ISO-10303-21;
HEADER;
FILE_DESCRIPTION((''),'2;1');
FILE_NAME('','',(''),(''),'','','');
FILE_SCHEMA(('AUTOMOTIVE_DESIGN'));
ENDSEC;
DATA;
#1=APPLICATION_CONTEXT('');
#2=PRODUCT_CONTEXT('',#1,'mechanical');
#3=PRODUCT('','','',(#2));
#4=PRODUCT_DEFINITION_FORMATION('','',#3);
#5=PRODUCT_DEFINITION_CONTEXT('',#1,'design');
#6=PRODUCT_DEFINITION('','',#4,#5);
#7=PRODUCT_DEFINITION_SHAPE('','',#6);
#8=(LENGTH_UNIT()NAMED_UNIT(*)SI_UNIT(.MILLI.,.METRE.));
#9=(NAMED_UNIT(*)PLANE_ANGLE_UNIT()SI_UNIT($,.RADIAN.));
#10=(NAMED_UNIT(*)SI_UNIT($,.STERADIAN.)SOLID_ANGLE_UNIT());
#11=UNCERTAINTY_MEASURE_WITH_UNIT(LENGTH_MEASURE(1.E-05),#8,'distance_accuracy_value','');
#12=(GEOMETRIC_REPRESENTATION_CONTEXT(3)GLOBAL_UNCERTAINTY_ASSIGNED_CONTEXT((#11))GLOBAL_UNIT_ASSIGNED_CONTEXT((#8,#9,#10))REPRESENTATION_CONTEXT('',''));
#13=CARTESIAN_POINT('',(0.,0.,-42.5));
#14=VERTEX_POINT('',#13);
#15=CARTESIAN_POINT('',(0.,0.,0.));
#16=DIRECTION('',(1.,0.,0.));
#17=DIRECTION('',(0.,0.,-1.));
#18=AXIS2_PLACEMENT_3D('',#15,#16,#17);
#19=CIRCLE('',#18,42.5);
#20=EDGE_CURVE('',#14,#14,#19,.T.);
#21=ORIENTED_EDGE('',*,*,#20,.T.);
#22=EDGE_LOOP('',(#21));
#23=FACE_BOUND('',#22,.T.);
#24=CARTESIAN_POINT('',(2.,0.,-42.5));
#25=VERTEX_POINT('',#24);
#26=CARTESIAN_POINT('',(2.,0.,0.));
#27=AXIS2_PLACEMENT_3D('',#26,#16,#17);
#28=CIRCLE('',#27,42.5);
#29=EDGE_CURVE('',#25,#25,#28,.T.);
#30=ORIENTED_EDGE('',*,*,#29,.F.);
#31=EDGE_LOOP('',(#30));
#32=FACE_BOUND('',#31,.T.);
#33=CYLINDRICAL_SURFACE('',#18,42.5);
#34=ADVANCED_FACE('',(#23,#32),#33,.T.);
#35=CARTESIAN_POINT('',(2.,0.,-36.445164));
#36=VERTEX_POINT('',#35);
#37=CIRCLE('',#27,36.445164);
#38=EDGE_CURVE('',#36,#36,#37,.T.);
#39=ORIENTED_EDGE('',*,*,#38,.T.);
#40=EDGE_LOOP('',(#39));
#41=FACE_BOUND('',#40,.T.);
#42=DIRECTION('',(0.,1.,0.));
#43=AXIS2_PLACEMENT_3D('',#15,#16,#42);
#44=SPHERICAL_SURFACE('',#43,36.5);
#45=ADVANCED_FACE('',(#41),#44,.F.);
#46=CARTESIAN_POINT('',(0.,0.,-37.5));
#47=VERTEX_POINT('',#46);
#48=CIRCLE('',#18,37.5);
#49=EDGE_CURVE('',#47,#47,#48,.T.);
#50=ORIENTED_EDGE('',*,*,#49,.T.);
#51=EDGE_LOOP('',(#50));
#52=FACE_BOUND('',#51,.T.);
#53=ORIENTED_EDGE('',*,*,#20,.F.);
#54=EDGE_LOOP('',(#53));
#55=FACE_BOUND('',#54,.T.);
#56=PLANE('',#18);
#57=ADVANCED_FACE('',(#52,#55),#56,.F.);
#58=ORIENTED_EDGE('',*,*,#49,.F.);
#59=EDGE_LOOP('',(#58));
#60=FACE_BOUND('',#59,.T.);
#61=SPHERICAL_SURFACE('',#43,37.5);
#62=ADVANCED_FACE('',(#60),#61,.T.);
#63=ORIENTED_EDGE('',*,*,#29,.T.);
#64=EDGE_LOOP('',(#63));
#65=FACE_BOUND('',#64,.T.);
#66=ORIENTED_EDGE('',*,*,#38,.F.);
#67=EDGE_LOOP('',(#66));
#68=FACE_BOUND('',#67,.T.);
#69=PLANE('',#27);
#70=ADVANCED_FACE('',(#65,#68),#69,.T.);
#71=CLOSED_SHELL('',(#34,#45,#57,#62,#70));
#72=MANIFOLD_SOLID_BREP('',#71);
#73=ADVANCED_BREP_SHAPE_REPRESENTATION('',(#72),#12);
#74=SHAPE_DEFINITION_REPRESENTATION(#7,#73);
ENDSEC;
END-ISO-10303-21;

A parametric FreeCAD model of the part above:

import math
import FreeCAD as App
import Part
import Sketcher
from FreeCAD import Vector

doc = App.newDocument("Part")
body = doc.addObject("PartDesign::Body", "Body")

# Sketch on XY plane
sketch1 = doc.addObject("Sketcher::SketchObject", "Sketch")
body.addObject(sketch1)
sketch1.AttachmentSupport = (doc.XY_Plane, [""])
sketch1.MapMode = "FlatFace"
sketch1.addGeometry(Part.LineSegment(Vector(0, 42.5, 0), Vector(0, 37.5, 0)), False)
sketch1.addGeometry(Part.ArcOfCircle(Part.Circle(Vector(0, 0, 0), Vector(0, 0, 1), 37.5), math.radians(90), math.radians(180)), False)
sketch1.addGeometry(Part.LineSegment(Vector(-37.5, 0, 0), Vector(-36.5, 0, 0)), False)
sketch1.addGeometry(Part.ArcOfCircle(Part.Circle(Vector(0, 0, 0), Vector(0, 0, 1), 36.5), math.radians(90), math.radians(180)), False)
sketch1.addGeometry(Part.ArcOfCircle(Part.Circle(Vector(0, 0, 0), Vector(0, 0, 1), 36.5), math.radians(86.86), math.radians(90)), False)
sketch1.addGeometry(Part.LineSegment(Vector(2, 36.4, 0), Vector(2, 42.5, 0)), False)
sketch1.addGeometry(Part.LineSegment(Vector(2, 42.5, 0), Vector(0, 42.5, 0)), False)
sketch1.addConstraint(Sketcher.Constraint("Coincident", 0, 2, 1, 1))
sketch1.addConstraint(Sketcher.Constraint("Coincident", 1, 2, 2, 1))
sketch1.addConstraint(Sketcher.Constraint("Coincident", 2, 2, 3, 2))
sketch1.addConstraint(Sketcher.Constraint("Tangent", 3, 1, 4, 2))
sketch1.addConstraint(Sketcher.Constraint("Coincident", 4, 1, 5, 1))
sketch1.addConstraint(Sketcher.Constraint("Coincident", 5, 2, 6, 1))
sketch1.addConstraint(Sketcher.Constraint("Coincident", 6, 2, 0, 1))
sketch1.addConstraint(Sketcher.Constraint("Vertical", 0))
sketch1.addConstraint(Sketcher.Constraint("Horizontal", 2))
sketch1.addConstraint(Sketcher.Constraint("Vertical", 5))
sketch1.addConstraint(Sketcher.Constraint("Horizontal", 6))
sketch1.addConstraint(Sketcher.Constraint("Coincident", 1, 3, -1, 1))
sketch1.addConstraint(Sketcher.Constraint("Coincident", 3, 3, -1, 1))
sketch1.addConstraint(Sketcher.Constraint("Equal", 3, 4))
sketch1.addConstraint(Sketcher.Constraint("PointOnObject", 0, 2, -2))
sketch1.addConstraint(Sketcher.Constraint("PointOnObject", 1, 2, -1))
sketch1.addConstraint(Sketcher.Constraint("PointOnObject", 3, 1, -2))
sketch1.addConstraint(Sketcher.Constraint("Radius", 1, 37.5))
sketch1.addConstraint(Sketcher.Constraint("Radius", 3, 36.5))
sketch1.addConstraint(Sketcher.Constraint("DistanceX", 6, 2, 6, 1, 2.0))
sketch1.addConstraint(Sketcher.Constraint("DistanceY", 0, 2, 0, 1, 5.0))
revolution = doc.addObject("PartDesign::Revolution", "Revolution")
body.addObject(revolution)
revolution.Profile = sketch1
revolution.ReferenceAxis = (sketch1, ["H_Axis"])
revolution.Angle = 360

doc.recompute()
